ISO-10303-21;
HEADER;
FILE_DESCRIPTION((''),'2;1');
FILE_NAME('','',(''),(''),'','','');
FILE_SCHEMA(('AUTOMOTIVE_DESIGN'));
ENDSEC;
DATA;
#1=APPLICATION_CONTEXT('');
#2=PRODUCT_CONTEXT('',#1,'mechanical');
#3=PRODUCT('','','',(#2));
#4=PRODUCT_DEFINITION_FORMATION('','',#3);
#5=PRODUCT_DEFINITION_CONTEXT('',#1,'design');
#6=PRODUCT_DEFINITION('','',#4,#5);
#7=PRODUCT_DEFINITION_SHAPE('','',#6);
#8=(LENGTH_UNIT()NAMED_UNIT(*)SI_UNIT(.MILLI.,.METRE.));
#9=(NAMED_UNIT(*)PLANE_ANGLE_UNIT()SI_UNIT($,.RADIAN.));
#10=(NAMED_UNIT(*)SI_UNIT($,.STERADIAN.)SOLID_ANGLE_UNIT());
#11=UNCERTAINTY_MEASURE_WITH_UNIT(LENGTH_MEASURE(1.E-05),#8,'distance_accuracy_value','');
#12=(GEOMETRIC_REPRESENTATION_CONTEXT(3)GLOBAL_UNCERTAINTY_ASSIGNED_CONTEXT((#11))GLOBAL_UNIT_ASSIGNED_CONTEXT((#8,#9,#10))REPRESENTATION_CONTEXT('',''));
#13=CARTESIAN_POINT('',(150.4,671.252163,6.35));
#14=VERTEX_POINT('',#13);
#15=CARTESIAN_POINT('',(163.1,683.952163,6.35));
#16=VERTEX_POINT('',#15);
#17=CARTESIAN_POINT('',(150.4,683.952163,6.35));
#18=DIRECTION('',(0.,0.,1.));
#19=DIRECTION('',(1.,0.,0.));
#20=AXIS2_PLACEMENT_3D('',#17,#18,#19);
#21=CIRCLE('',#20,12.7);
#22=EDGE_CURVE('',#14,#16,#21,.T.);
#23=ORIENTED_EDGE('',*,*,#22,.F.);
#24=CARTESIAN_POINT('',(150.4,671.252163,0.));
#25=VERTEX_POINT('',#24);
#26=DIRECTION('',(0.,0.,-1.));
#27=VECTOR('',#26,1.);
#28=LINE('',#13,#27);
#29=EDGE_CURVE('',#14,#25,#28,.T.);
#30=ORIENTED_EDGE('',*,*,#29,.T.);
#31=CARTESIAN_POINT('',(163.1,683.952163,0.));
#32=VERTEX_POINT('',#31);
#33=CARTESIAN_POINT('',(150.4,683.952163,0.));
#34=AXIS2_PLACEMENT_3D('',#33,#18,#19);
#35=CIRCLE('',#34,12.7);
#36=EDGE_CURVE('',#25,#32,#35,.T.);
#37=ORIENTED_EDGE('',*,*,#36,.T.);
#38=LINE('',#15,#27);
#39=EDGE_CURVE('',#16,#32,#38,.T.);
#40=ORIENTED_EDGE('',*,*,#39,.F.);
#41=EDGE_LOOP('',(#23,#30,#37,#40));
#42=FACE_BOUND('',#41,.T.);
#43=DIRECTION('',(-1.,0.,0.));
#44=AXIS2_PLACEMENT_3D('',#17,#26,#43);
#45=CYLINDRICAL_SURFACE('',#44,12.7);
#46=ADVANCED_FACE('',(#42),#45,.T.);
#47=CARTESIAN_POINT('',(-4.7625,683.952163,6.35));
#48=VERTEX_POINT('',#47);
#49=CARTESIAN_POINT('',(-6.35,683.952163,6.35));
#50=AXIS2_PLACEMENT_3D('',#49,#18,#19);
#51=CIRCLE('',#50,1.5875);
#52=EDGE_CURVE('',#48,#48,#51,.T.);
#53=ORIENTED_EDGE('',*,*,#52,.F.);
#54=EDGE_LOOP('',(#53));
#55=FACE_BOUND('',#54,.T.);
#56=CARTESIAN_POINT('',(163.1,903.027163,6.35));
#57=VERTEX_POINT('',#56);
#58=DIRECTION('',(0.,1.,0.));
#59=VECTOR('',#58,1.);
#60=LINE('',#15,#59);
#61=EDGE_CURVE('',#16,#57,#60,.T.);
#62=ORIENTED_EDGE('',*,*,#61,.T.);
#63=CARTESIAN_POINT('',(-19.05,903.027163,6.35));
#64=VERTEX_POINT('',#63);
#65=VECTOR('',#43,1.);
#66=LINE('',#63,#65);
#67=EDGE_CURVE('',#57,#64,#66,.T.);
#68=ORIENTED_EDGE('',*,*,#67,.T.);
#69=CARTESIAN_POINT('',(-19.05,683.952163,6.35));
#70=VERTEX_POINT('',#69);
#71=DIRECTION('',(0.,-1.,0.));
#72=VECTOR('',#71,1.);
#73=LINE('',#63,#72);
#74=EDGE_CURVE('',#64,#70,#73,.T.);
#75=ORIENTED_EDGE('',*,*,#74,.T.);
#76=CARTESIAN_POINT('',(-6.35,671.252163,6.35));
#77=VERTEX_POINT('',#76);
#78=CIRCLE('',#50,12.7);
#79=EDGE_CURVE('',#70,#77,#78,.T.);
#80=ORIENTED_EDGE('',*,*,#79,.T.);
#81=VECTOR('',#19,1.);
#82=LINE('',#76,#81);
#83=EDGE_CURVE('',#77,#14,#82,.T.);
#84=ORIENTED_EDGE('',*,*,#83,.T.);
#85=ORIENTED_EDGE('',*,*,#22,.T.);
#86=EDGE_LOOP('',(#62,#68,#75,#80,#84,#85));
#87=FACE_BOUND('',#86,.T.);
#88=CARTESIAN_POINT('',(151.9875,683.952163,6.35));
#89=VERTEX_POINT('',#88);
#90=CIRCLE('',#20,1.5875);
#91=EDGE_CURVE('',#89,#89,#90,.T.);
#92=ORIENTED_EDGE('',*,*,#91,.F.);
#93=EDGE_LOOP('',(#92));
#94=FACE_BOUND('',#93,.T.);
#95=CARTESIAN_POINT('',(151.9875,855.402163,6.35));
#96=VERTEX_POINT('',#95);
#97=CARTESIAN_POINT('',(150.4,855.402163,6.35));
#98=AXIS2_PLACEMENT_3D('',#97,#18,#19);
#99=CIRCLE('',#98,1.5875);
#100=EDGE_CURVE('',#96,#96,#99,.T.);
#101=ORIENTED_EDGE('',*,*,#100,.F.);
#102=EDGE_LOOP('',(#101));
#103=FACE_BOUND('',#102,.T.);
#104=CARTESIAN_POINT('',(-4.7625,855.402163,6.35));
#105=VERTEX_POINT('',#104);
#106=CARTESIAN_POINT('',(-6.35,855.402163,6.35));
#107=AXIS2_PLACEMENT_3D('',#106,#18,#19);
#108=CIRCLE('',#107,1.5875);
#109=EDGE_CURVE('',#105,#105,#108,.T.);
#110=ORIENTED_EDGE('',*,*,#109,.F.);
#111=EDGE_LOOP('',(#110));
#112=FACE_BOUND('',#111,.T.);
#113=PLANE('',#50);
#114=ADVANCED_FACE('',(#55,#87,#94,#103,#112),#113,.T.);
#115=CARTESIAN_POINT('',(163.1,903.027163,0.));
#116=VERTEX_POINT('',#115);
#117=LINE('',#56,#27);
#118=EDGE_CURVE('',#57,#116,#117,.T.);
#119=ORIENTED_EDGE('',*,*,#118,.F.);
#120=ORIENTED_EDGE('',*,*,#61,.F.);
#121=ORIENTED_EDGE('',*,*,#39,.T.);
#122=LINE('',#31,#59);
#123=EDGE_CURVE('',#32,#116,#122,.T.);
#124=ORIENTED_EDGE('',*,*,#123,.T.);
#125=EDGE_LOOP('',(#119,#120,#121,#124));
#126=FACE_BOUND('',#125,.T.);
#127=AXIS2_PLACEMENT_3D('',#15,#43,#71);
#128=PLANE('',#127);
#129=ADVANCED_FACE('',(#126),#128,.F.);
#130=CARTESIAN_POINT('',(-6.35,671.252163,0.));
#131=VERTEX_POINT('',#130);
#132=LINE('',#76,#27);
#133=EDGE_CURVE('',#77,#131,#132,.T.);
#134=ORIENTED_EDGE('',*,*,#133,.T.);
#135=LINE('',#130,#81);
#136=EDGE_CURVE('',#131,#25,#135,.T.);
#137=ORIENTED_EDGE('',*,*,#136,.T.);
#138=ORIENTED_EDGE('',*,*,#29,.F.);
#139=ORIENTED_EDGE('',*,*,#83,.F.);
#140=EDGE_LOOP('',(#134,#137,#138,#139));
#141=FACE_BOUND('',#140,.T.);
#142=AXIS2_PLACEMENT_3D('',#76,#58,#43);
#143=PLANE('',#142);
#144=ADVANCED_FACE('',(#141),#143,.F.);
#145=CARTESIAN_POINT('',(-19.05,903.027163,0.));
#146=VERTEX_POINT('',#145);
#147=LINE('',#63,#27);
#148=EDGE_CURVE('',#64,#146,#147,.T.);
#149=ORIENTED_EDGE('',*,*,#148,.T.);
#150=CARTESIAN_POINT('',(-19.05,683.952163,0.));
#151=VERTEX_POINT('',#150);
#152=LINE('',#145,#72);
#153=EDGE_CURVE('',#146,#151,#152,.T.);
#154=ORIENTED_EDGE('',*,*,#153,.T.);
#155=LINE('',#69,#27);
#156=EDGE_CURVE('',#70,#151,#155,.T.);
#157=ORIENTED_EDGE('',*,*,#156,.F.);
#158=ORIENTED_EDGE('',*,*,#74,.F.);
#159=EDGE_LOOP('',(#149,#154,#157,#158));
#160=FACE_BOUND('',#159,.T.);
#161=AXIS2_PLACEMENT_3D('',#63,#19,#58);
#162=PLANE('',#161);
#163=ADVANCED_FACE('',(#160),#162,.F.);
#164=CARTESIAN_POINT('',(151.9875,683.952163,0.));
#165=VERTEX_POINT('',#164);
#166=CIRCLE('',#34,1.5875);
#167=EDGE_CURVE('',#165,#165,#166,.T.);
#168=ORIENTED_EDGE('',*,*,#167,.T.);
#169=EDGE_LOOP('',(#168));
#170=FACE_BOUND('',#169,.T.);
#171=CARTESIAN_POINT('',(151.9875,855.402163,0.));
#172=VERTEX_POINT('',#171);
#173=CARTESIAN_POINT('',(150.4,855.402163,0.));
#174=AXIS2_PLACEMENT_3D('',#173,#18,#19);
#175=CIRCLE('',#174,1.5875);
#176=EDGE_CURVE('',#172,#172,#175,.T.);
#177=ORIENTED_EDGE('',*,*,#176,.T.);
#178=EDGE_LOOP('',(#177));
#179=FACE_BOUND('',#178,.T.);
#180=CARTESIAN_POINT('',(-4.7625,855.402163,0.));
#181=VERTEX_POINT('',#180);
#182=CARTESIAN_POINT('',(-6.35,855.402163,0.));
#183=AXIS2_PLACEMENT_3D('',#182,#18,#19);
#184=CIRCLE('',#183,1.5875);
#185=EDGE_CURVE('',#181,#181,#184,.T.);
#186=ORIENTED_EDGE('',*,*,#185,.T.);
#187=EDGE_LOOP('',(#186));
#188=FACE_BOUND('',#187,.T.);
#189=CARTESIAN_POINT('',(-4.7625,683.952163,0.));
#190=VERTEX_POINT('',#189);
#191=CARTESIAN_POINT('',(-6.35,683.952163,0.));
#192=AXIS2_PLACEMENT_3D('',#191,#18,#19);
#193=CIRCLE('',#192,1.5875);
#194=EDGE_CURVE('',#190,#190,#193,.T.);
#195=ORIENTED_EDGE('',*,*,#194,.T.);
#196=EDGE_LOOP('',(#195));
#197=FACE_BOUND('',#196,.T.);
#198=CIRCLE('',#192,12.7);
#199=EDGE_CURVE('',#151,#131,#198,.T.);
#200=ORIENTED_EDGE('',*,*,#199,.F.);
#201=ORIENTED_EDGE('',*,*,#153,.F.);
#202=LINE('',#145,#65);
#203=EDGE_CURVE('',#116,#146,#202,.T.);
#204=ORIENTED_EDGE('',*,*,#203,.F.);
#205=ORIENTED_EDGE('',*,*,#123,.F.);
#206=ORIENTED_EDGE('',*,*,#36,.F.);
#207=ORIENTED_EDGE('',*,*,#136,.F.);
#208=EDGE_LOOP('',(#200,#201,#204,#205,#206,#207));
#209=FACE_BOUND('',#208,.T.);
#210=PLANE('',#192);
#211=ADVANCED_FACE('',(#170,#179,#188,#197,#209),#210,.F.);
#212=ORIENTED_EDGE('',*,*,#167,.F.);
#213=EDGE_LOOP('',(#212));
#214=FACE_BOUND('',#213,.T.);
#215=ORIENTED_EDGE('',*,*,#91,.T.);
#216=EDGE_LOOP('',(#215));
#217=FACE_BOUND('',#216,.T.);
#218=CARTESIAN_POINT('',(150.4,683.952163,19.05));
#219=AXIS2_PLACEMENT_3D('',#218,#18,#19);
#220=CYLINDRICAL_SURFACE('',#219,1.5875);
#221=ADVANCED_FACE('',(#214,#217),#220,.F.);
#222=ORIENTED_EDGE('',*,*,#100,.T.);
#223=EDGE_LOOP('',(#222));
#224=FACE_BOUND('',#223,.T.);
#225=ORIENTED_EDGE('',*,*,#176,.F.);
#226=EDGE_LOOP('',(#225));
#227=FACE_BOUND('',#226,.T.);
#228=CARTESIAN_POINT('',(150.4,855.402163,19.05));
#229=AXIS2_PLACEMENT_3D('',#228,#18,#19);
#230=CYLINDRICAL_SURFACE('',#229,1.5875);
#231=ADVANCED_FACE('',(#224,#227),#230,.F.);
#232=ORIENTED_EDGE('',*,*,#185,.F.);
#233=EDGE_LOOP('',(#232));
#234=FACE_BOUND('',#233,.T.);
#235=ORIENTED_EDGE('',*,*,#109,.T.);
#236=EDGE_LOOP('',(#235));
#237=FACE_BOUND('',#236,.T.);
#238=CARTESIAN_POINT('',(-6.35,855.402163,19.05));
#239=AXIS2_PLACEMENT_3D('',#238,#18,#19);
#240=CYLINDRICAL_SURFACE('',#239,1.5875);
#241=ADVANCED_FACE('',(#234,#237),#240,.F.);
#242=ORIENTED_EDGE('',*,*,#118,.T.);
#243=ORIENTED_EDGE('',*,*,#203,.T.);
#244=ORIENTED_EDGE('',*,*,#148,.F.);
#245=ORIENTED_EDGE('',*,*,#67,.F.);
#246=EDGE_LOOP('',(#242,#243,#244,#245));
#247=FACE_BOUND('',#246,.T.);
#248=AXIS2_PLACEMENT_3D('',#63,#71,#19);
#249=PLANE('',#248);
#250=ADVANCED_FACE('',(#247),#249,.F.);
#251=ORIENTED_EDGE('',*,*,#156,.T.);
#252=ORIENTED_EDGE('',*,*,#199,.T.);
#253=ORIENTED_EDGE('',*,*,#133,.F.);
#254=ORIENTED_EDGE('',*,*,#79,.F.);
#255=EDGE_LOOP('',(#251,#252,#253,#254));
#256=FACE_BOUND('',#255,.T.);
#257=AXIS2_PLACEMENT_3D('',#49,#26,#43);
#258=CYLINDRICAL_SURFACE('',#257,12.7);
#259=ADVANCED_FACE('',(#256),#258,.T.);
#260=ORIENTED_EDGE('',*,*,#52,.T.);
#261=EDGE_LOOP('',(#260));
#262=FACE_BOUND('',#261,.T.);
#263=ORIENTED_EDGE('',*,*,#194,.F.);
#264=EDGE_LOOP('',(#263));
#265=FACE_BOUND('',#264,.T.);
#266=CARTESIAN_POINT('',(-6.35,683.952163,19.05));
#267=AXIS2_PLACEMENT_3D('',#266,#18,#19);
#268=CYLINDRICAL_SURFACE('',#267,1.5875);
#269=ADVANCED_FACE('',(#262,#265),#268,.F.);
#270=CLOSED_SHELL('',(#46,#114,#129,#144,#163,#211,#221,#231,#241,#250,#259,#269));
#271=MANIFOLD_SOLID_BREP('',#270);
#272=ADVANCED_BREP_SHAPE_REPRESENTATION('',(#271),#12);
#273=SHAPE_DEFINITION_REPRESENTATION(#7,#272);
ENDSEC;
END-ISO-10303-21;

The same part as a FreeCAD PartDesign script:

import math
import FreeCAD as App
import Part
import Sketcher

V = App.Vector
Q = App.Units.Quantity

doc = App.newDocument("Part")
body = doc.addObject("PartDesign::Body", "Body")

sketch1 = body.newObject("Sketcher::SketchObject", "Sketch")
sketch1.AttachmentSupport = (doc.getObject("XY_Plane"), [""])
sketch1.MapMode = "FlatFace"
sketch1.addGeometry([
    Part.LineSegment(V(163, 903, 0), V(-19, 903, 0)),
    Part.LineSegment(V(-19, 903, 0), V(-19, 684, 0)),
    Part.ArcOfCircle(Part.Circle(V(-6, 684, 0), V(0, 0, 1), 13), math.radians(180), math.radians(270)),
    Part.LineSegment(V(-6, 671, 0), V(150, 671, 0)),
    Part.ArcOfCircle(Part.Circle(V(150, 684, 0), V(0, 0, 1), 13), math.radians(-90), math.radians(0)),
    Part.LineSegment(V(163, 684, 0), V(163, 903, 0)),
], False)
sketch1.addConstraint([
    Sketcher.Constraint("Coincident", 0, 2, 1, 1),
    Sketcher.Constraint("Tangent", 1, 2, 2, 1),
    Sketcher.Constraint("Tangent", 2, 2, 3, 1),
    Sketcher.Constraint("Tangent", 3, 2, 4, 1),
    Sketcher.Constraint("Tangent", 4, 2, 5, 1),
    Sketcher.Constraint("Coincident", 5, 2, 0, 1),
    Sketcher.Constraint("Horizontal", 0),
    Sketcher.Constraint("Vertical", 1),
    Sketcher.Constraint("Horizontal", 3),
    Sketcher.Constraint("Vertical", 5),
    Sketcher.Constraint("Equal", 2, 4),
    Sketcher.Constraint("Radius", 2, Q("0.5 in")),
    Sketcher.Constraint("DistanceY", 1, 2, 1, 1, Q("8.625 in")),
    Sketcher.Constraint("DistanceX", 2, 3, -1, 1, Q("0.25 in")),
    Sketcher.Constraint("DistanceX", 0, 2, 0, 1, Q("182.15 mm")),
    Sketcher.Constraint("DistanceY", -1, 1, 2, 3, Q("683.952163 mm")),
])
pad1 = body.newObject("PartDesign::Pad", "Pad")
pad1.Profile = sketch1
pad1.Length = Q("0.25 in")

sketch2 = body.newObject("Sketcher::SketchObject", "Sketch001")
sketch2.AttachmentSupport = (doc.getObject("XY_Plane"), [""])
sketch2.MapMode = "FlatFace"
sketch2.AttachmentOffset = App.Placement(V(0, 0, 0.75 * 25.4), App.Rotation())
sketch2.addGeometry([
    Part.Circle(V(-6.3, 855.4, 0), V(0, 0, 1), 1.6),
    Part.Circle(V(-6.3, 684, 0), V(0, 0, 1), 1.6),
    Part.Circle(V(150.4, 684, 0), V(0, 0, 1), 1.6),
    Part.Circle(V(150.4, 855.4, 0), V(0, 0, 1), 1.6),
], False)
sketch2.addConstraint([
    Sketcher.Constraint("Equal", 0, 1),
    Sketcher.Constraint("Equal", 1, 2),
    Sketcher.Constraint("Equal", 2, 3),
    Sketcher.Constraint("Horizontal", 1, 3, 2, 3),
    Sketcher.Constraint("Horizontal", 0, 3, 3, 3),
    Sketcher.Constraint("Vertical", 0, 3, 1, 3),
    Sketcher.Constraint("Vertical", 2, 3, 3, 3),
    Sketcher.Constraint("Diameter", 0, Q("0.125 in")),
    Sketcher.Constraint("DistanceX", 0, 3, -1, 1, Q("0.25 in")),
    Sketcher.Constraint("DistanceY", 1, 3, 0, 3, Q("6.75 in")),
    Sketcher.Constraint("DistanceX", -1, 1, 2, 3, Q("150.4 mm")),
    Sketcher.Constraint("DistanceY", -1, 1, 0, 3, Q("855.402163 mm")),
])
doc.recompute()
hole = body.newObject("PartDesign::Hole", "Hole")
hole.Profile = sketch2
hole.ThreadType = "None"
hole.Diameter = Q("0.125 in")
hole.DepthType = "Dimension"
hole.Depth = Q("1.25 in")
hole.DrillPoint = "Angled"
hole.DrillPointAngle = 118
hole.HoleCutType = "Countersink"
hole.HoleCutDiameter = Q("0.4 in")
hole.HoleCutCountersinkAngle = 82

doc.recompute()
